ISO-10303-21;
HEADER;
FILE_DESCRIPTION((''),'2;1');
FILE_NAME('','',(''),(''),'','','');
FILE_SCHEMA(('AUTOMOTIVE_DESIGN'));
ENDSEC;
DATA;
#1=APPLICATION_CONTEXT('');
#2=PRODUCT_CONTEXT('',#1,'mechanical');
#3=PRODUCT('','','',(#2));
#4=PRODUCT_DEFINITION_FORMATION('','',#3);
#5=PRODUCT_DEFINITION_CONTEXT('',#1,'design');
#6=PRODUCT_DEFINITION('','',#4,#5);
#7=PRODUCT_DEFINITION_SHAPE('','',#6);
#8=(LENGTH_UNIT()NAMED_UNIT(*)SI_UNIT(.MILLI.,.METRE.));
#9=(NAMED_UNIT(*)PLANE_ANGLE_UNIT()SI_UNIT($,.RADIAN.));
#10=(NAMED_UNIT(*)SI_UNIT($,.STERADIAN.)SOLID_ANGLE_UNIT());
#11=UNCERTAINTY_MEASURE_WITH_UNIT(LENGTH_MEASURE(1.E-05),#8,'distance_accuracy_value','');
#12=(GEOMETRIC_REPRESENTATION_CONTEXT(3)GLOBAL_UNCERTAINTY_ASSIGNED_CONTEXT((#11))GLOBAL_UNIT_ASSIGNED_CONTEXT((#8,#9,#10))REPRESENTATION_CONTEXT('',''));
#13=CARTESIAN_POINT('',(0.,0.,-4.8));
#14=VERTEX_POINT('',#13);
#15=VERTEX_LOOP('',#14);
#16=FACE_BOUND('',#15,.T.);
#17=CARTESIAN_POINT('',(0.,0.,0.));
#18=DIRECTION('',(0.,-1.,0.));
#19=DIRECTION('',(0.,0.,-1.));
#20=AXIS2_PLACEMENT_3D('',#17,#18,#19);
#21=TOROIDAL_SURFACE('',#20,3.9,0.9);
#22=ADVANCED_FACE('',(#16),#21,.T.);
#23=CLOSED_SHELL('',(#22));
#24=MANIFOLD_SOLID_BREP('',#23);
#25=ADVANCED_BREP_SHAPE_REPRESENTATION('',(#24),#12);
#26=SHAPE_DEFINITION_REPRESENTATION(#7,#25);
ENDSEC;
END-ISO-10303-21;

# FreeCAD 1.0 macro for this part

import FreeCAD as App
import Part
import Sketcher
from FreeCAD import Vector

doc = App.newDocument("Part")
body = doc.addObject("PartDesign::Body", "Body")

# Sketch on XY plane
sketch1 = doc.addObject("Sketcher::SketchObject", "Sketch")
body.addObject(sketch1)
sketch1.AttachmentSupport = (doc.XY_Plane, [""])
sketch1.MapMode = "FlatFace"
sketch1.addGeometry(Part.Circle(Vector(3.9, 0, 0), Vector(0, 0, 1), 0.9), False)
sketch1.addConstraint(Sketcher.Constraint("PointOnObject", 0, 3, -1))
sketch1.addConstraint(Sketcher.Constraint("Diameter", 0, 1.8))
sketch1.addConstraint(Sketcher.Constraint("DistanceX", -1, 1, 0, 3, 3.9))
revolution = doc.addObject("PartDesign::Revolution", "Revolution")
body.addObject(revolution)
revolution.Profile = sketch1
revolution.ReferenceAxis = (sketch1, ["V_Axis"])
revolution.Angle = 360

doc.recompute()
